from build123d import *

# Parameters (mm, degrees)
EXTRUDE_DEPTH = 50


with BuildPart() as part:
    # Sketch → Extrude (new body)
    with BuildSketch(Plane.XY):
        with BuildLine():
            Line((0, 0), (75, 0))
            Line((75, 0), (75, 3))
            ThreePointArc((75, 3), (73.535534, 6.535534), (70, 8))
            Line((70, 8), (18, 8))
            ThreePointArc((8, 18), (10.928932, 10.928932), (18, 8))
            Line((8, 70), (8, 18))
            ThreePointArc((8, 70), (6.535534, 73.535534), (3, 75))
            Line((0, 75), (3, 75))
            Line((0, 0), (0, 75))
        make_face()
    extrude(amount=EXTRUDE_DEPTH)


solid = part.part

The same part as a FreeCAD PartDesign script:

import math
import FreeCAD as App
import Part
import Sketcher

doc = App.newDocument("Part")
body = doc.addObject("PartDesign::Body", "Body")

# Sketch on XY plane
sketch1 = body.newObject("Sketcher::SketchObject", "Sketch")
sketch1.AttachmentSupport = (doc.getObject("XY_Plane"), [""])
sketch1.MapMode = "FlatFace"
sketch1.addGeometry([
    Part.LineSegment(App.Vector(0, 0, 0), App.Vector(75, 0, 0)),  # 0
    Part.LineSegment(App.Vector(75, 0, 0), App.Vector(75, 3, 0)),  # 1
    Part.ArcOfCircle(Part.Circle(App.Vector(70, 3, 0), App.Vector(0, 0, 1), 5), math.radians(-0.000004), math.radians(90.000004)),  # 2
    Part.LineSegment(App.Vector(70, 8, 0), App.Vector(18, 8, 0)),  # 3
    Part.ArcOfCircle(Part.Circle(App.Vector(17.999999, 17.999999, 0), App.Vector(0, 0, 1), 9.999999), math.radians(179.999996), math.radians(270.000004)),  # 4
    Part.LineSegment(App.Vector(8, 18, 0), App.Vector(8, 70, 0)),  # 5
    Part.ArcOfCircle(Part.Circle(App.Vector(3, 70, 0), App.Vector(0, 0, 1), 5), math.radians(-0.000004), math.radians(90.000004)),  # 6
    Part.LineSegment(App.Vector(3, 75, 0), App.Vector(0, 75, 0)),  # 7
    Part.LineSegment(App.Vector(0, 75, 0), App.Vector(0, 0, 0)),  # 8
], False)
sketch1.addConstraint([
    Sketcher.Constraint("Coincident", 0, 2, 1, 1),
    Sketcher.Constraint("Tangent", 1, 2, 2, 1),
    Sketcher.Constraint("Tangent", 2, 2, 3, 1),
    Sketcher.Constraint("Tangent", 3, 2, 4, 2),
    Sketcher.Constraint("Tangent", 4, 1, 5, 1),
    Sketcher.Constraint("Tangent", 5, 2, 6, 1),
    Sketcher.Constraint("Tangent", 6, 2, 7, 1),
    Sketcher.Constraint("Coincident", 7, 2, 8, 1),
    Sketcher.Constraint("Coincident", 8, 2, 0, 1),
    Sketcher.Constraint("Horizontal", 0),
    Sketcher.Constraint("Vertical", 1),
    Sketcher.Constraint("Horizontal", 3),
    Sketcher.Constraint("Vertical", 5),
    Sketcher.Constraint("Horizontal", 7),
    Sketcher.Constraint("Vertical", 8),
    Sketcher.Constraint("Coincident", 8, 2, -1, 1),
    Sketcher.Constraint("Equal", 2, 6),
    Sketcher.Constraint("Equal", 7, 1),
    Sketcher.Constraint("Equal", 3, 5),
    Sketcher.Constraint("Radius", 2, 5.0),
    Sketcher.Constraint("Radius", 4, 9.999999),
    Sketcher.Constraint("DistanceX", 0, 1, 0, 2, 75.0),
    Sketcher.Constraint("DistanceX", 3, 2, 3, 1, 52.0),
])
pad1 = body.newObject("PartDesign::Pad", "Pad")
pad1.Profile = sketch1
pad1.Length = 50

doc.recompute()
